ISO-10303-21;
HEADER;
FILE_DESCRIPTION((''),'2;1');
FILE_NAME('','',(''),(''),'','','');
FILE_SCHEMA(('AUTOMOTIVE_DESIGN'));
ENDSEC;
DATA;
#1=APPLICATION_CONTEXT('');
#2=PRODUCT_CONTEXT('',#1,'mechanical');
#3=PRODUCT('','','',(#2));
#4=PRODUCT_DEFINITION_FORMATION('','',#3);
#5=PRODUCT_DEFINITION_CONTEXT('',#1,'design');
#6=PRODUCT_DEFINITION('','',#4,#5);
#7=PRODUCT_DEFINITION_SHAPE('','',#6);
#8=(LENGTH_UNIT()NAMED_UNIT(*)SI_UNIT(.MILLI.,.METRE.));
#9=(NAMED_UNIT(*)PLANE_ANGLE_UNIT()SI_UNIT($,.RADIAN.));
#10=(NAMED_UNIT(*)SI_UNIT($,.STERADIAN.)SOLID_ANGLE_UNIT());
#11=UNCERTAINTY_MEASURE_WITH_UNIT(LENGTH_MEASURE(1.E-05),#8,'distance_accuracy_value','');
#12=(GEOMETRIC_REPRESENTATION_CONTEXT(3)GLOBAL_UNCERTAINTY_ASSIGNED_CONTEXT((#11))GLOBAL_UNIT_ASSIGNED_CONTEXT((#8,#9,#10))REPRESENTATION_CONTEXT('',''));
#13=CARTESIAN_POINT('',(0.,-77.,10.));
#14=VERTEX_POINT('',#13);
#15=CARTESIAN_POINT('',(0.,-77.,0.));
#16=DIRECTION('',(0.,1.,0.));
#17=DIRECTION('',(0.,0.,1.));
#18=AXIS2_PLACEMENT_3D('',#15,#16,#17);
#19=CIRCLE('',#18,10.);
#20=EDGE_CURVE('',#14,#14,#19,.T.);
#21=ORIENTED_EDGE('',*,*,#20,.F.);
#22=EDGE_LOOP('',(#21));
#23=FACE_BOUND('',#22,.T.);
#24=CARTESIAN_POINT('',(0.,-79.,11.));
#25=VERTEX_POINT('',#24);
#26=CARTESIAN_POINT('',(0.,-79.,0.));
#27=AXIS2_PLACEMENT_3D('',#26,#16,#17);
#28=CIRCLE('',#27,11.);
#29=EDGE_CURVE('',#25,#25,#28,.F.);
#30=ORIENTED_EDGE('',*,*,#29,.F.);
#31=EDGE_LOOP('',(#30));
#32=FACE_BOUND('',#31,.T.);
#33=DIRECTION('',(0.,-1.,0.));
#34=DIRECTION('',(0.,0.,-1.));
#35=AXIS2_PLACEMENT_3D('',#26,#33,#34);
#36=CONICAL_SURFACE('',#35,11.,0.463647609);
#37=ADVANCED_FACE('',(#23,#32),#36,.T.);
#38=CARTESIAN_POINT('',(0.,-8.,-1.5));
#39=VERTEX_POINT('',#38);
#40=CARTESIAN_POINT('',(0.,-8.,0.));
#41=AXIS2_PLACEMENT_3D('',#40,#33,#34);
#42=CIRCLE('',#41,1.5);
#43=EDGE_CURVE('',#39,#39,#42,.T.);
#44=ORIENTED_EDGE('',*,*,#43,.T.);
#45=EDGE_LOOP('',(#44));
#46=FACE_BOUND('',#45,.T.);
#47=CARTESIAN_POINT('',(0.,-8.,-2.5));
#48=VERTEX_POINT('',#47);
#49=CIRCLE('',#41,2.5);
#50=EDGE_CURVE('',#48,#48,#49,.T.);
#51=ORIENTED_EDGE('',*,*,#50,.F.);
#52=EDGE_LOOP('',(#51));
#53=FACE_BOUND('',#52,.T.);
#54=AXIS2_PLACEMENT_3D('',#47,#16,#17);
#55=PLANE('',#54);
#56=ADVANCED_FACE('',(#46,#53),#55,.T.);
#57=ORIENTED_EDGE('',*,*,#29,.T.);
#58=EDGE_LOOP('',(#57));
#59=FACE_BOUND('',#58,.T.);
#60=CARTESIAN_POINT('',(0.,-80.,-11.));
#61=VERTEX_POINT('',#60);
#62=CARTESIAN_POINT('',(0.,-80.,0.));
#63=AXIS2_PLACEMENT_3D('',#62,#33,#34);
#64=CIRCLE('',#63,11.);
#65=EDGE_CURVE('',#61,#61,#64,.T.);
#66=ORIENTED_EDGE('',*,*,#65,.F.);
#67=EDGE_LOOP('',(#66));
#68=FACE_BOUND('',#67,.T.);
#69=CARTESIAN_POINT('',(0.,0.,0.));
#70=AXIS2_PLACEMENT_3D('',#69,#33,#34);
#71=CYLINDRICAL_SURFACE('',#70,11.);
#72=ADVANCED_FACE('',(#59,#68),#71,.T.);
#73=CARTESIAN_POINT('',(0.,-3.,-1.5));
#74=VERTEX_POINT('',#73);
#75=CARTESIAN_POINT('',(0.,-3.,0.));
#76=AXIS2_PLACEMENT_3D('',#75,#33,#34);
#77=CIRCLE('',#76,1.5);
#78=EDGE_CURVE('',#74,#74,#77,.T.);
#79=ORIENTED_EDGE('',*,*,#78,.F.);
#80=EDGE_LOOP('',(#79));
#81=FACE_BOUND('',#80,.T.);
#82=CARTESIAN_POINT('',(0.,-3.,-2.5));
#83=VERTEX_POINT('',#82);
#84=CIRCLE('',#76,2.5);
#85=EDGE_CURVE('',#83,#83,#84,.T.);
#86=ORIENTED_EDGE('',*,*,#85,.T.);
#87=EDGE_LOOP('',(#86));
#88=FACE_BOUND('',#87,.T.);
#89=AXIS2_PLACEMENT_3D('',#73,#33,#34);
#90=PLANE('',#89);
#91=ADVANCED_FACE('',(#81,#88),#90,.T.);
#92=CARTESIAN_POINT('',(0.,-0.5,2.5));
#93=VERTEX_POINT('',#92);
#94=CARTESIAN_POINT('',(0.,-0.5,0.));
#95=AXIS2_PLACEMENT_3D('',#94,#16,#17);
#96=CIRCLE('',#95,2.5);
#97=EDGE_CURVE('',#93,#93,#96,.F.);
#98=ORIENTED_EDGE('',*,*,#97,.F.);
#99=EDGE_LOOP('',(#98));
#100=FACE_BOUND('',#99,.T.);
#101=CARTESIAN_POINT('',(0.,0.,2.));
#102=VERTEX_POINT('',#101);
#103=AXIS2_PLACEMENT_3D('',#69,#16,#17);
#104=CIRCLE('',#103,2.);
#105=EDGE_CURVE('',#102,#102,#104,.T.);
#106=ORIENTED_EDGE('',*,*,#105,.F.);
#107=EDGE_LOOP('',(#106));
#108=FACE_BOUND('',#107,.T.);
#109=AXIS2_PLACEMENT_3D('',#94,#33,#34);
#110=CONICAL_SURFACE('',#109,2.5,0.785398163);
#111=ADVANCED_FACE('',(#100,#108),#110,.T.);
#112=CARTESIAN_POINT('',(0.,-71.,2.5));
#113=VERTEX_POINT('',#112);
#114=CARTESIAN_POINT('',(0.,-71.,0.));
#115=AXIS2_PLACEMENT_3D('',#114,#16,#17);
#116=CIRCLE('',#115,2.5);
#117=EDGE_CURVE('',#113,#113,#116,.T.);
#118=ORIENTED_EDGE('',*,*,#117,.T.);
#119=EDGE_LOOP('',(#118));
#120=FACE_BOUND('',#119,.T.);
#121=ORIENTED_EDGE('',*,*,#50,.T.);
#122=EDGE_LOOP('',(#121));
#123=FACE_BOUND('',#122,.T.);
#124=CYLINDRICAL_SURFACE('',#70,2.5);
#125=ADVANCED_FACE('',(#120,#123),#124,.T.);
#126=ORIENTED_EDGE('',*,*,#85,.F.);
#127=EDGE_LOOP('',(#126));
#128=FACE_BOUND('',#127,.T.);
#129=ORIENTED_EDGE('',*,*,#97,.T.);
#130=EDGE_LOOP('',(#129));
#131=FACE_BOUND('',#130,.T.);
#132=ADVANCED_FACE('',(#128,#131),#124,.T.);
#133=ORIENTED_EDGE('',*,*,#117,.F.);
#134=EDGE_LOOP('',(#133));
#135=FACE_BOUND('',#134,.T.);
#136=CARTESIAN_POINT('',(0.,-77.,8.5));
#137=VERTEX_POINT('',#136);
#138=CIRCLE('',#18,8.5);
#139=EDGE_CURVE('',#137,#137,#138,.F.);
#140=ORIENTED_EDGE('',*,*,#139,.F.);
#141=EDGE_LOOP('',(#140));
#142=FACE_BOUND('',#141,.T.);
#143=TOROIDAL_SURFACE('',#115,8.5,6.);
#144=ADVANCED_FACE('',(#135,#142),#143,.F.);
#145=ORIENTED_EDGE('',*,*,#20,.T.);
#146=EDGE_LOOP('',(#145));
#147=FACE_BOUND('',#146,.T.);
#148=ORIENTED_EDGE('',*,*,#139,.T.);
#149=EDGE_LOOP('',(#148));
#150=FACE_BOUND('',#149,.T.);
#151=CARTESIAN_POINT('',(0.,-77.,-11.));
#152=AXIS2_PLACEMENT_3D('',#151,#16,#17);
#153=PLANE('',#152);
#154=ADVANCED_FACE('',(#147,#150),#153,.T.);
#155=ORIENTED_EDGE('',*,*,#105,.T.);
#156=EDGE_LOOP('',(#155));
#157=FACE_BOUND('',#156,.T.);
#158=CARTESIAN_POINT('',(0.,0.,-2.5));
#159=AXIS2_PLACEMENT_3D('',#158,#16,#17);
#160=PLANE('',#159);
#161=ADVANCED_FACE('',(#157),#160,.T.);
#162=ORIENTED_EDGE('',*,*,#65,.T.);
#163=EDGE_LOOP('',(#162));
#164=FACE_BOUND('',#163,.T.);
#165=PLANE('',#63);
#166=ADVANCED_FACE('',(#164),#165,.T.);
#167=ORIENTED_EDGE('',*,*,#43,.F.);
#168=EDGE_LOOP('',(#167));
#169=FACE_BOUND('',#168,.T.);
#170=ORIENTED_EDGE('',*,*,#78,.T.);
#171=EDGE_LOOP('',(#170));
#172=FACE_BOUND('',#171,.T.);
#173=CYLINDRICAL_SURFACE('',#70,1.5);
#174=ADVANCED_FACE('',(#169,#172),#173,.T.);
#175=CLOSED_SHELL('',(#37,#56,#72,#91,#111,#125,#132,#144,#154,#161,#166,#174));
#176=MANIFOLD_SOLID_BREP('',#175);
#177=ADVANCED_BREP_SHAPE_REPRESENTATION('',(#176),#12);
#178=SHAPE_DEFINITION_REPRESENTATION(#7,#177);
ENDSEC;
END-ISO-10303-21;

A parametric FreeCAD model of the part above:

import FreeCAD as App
import Part
import Sketcher
from FreeCAD import Vector


def edges_at(feature, points):
    """Names of the edges that pass closest to the given points."""
    edges = feature.Shape.Edges
    near = lambda p: min(range(len(edges)), key=lambda i: edges[i].distToShape(Part.Vertex(*p))[0])
    return sorted({f"Edge{near(p) + 1}" for p in points})


def add_polygon(sketch, points):
    """Adds a closed chain of lines whose ends are joined by coincident constraints."""
    first, n = sketch.GeometryCount, len(points)
    for a, b in zip(points, points[1:] + points[:1]):
        sketch.addGeometry(Part.LineSegment(App.Vector(*a, 0), App.Vector(*b, 0)), False)
    for i in range(n):
        sketch.addConstraint(Sketcher.Constraint("Coincident", first + i, 2, first + (i + 1) % n, 1))

doc = App.newDocument("Part")
params = doc.addObject("Spreadsheet::Sheet", "Params")
for row, (alias, value) in enumerate([
    ("sketch1_width", "80 mm"),
    ("sketch1_width2", "3 mm"),
    ("sketch1_width3", "69 mm"),
    ("sketch1_height", "11 mm"),
    ("sketch1_height2", "1 mm"),
    ("revolution_angle", "360 deg"),
    ("fillet_radius", "6 mm"),
    ("chamfer_size", "1 mm"),
    ("chamfer_size2", "2 mm"),
    ("chamfer2_size", "0.5 mm"),
], start=1):
    params.set(f"A{row}", alias)
    params.set(f"B{row}", "=" + value)
    params.setAlias(f"B{row}", alias)

body = doc.addObject("PartDesign::Body", "Body")

sketch1 = doc.addObject("Sketcher::SketchObject", "Sketch")
body.addObject(sketch1)
sketch1.AttachmentSupport = (doc.YZ_Plane, [""])
sketch1.MapMode = "FlatFace"
add_polygon(sketch1, [(0, 0), (-80, 0), (-80, -11), (-77, -11), (-77, -2.5), (-8, -2.5), (-8, -1.5), (-3, -1.5), (-3, -2.5), (0, -2.5)])
sketch1.addConstraint([
    Sketcher.Constraint("Horizontal", 0),
    Sketcher.Constraint("Vertical", 1),
    Sketcher.Constraint("Horizontal", 2),
    Sketcher.Constraint("Vertical", 3),
    Sketcher.Constraint("Horizontal", 4),
    Sketcher.Constraint("Vertical", 5),
    Sketcher.Constraint("Horizontal", 6),
    Sketcher.Constraint("Vertical", 7),
    Sketcher.Constraint("Horizontal", 8),
    Sketcher.Constraint("Vertical", 9),
    Sketcher.Constraint("Coincident", 9, 2, -1, 1),
    Sketcher.Constraint("Horizontal", 4, 2, 7, 2),
    Sketcher.Constraint("Equal", 2, 8),
    Sketcher.Constraint("DistanceX", 0, 2, 0, 1, 80.0),
    Sketcher.Constraint("DistanceX", 2, 1, 2, 2, 3.0),
    Sketcher.Constraint("DistanceX", 4, 1, 4, 2, 69.0),
    Sketcher.Constraint("DistanceY", 1, 2, 1, 1, 11.0),
    Sketcher.Constraint("DistanceY", 5, 1, 5, 2, 1.0),
    Sketcher.Constraint("DistanceY", 3, 1, 3, 2, 8.5),
])
sketch1.setExpression("Constraints[23]", "Params.sketch1_width")
sketch1.setExpression("Constraints[24]", "Params.sketch1_width2")
sketch1.setExpression("Constraints[25]", "Params.sketch1_width3")
sketch1.setExpression("Constraints[26]", "Params.sketch1_height")
sketch1.setExpression("Constraints[27]", "Params.sketch1_height2")
revolution = doc.addObject("PartDesign::Revolution", "Revolution")
body.addObject(revolution)
revolution.Profile = sketch1
revolution.ReferenceAxis = (sketch1, ["H_Axis"])
revolution.setExpression("Angle", "Params.revolution_angle")
doc.recompute()

fillet = doc.addObject("PartDesign::Fillet", "Fillet")
body.addObject(fillet)
fillet.Base = (revolution, edges_at(revolution, [(0, -77, 2.5)]))
fillet.setExpression("Radius", "Params.fillet_radius")
doc.recompute()

chamfer = doc.addObject("PartDesign::Chamfer", "Chamfer")
body.addObject(chamfer)
chamfer.Base = (fillet, edges_at(fillet, [(0, -77, 11)]))
chamfer.ChamferType = "Two distances"
chamfer.setExpression("Size", "Params.chamfer_size")
chamfer.setExpression("Size2", "Params.chamfer_size2")
doc.recompute()

chamfer2 = doc.addObject("PartDesign::Chamfer", "Chamfer001")
body.addObject(chamfer2)
chamfer2.Base = (chamfer, edges_at(chamfer, [(0, 0, 2.5)]))
chamfer2.setExpression("Size", "Params.chamfer2_size")

doc.recompute()
